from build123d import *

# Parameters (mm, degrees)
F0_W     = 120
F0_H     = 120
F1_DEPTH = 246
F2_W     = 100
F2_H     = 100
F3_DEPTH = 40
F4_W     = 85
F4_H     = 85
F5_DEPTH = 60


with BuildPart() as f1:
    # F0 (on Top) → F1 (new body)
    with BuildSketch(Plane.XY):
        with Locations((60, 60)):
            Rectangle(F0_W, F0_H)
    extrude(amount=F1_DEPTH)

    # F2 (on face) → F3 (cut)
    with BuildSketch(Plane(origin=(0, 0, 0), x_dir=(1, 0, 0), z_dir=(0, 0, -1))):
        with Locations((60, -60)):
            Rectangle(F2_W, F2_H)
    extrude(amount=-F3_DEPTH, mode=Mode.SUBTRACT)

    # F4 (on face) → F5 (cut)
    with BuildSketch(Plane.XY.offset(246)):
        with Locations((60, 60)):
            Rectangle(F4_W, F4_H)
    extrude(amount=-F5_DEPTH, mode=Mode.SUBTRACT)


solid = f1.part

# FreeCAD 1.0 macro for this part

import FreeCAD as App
import Part
import Sketcher


def add_polygon(sketch, points):
    """Adds a closed chain of lines whose ends are joined by coincident constraints."""
    first, n = sketch.GeometryCount, len(points)
    for a, b in zip(points, points[1:] + points[:1]):
        sketch.addGeometry(Part.LineSegment(App.Vector(*a, 0), App.Vector(*b, 0)), False)
    for i in range(n):
        sketch.addConstraint(Sketcher.Constraint("Coincident", first + i, 2, first + (i + 1) % n, 1))

doc = App.newDocument("Part")
body = doc.addObject("PartDesign::Body", "Body")

# Sketch on XY plane
sketch1 = body.newObject("Sketcher::SketchObject", "Sketch")
sketch1.AttachmentSupport = (doc.getObject("XY_Plane"), [""])
sketch1.MapMode = "FlatFace"
add_polygon(sketch1, [(0, 120), (0, 0), (120, 0), (120, 120)])  # lines 0-3
sketch1.addConstraint([
    Sketcher.Constraint("Vertical", 0),
    Sketcher.Constraint("Horizontal", 1),
    Sketcher.Constraint("Vertical", 2),
    Sketcher.Constraint("Horizontal", 3),
    Sketcher.Constraint("Coincident", 0, 2, -1, 1),
    Sketcher.Constraint("Equal", 3, 0),
    Sketcher.Constraint("DistanceX", 1, 1, 1, 2, 120.0),
])
pad1 = body.newObject("PartDesign::Pad", "Pad")
pad1.Profile = sketch1
pad1.Length = 246

# Sketch on XY plane
sketch2 = body.newObject("Sketcher::SketchObject", "Sketch001")
sketch2.AttachmentSupport = (doc.getObject("XY_Plane"), [""])
sketch2.MapMode = "FlatFace"
add_polygon(sketch2, [(10, 10), (10, 110), (110, 110), (110, 10)])  # lines 0-3
sketch2.addConstraint([
    Sketcher.Constraint("Vertical", 0),
    Sketcher.Constraint("Horizontal", 1),
    Sketcher.Constraint("Vertical", 2),
    Sketcher.Constraint("Horizontal", 3),
    Sketcher.Constraint("Equal", 3, 0),
    Sketcher.Constraint("DistanceX", 1, 1, 1, 2, 100.0),
    Sketcher.Constraint("DistanceX", -1, 1, 0, 2, 10.0),
    Sketcher.Constraint("DistanceY", -1, 1, 0, 2, 110.0),
])
pocket1 = body.newObject("PartDesign::Pocket", "Pocket")
pocket1.Profile = sketch2
pocket1.Length = 40
pocket1.Reversed = True

# Sketch on XY plane
sketch3 = body.newObject("Sketcher::SketchObject", "Sketch002")
sketch3.AttachmentSupport = (doc.getObject("XY_Plane"), [""])
sketch3.MapMode = "FlatFace"
sketch3.AttachmentOffset = App.Placement(App.Vector(0, 0, 246), App.Rotation())
add_polygon(sketch3, [(17.5, 102.5), (17.5, 17.5), (102.5, 17.5), (102.5, 102.5)])  # lines 0-3
sketch3.addConstraint([
    Sketcher.Constraint("Vertical", 0),
    Sketcher.Constraint("Horizontal", 1),
    Sketcher.Constraint("Vertical", 2),
    Sketcher.Constraint("Horizontal", 3),
    Sketcher.Constraint("Equal", 3, 0),
    Sketcher.Constraint("DistanceX", 1, 1, 1, 2, 85.0),
    Sketcher.Constraint("DistanceX", -1, 1, 0, 2, 17.5),
    Sketcher.Constraint("DistanceY", -1, 1, 0, 2, 17.5),
])
pocket2 = body.newObject("PartDesign::Pocket", "Pocket001")
pocket2.Profile = sketch3
pocket2.Length = 60

doc.recompute()
